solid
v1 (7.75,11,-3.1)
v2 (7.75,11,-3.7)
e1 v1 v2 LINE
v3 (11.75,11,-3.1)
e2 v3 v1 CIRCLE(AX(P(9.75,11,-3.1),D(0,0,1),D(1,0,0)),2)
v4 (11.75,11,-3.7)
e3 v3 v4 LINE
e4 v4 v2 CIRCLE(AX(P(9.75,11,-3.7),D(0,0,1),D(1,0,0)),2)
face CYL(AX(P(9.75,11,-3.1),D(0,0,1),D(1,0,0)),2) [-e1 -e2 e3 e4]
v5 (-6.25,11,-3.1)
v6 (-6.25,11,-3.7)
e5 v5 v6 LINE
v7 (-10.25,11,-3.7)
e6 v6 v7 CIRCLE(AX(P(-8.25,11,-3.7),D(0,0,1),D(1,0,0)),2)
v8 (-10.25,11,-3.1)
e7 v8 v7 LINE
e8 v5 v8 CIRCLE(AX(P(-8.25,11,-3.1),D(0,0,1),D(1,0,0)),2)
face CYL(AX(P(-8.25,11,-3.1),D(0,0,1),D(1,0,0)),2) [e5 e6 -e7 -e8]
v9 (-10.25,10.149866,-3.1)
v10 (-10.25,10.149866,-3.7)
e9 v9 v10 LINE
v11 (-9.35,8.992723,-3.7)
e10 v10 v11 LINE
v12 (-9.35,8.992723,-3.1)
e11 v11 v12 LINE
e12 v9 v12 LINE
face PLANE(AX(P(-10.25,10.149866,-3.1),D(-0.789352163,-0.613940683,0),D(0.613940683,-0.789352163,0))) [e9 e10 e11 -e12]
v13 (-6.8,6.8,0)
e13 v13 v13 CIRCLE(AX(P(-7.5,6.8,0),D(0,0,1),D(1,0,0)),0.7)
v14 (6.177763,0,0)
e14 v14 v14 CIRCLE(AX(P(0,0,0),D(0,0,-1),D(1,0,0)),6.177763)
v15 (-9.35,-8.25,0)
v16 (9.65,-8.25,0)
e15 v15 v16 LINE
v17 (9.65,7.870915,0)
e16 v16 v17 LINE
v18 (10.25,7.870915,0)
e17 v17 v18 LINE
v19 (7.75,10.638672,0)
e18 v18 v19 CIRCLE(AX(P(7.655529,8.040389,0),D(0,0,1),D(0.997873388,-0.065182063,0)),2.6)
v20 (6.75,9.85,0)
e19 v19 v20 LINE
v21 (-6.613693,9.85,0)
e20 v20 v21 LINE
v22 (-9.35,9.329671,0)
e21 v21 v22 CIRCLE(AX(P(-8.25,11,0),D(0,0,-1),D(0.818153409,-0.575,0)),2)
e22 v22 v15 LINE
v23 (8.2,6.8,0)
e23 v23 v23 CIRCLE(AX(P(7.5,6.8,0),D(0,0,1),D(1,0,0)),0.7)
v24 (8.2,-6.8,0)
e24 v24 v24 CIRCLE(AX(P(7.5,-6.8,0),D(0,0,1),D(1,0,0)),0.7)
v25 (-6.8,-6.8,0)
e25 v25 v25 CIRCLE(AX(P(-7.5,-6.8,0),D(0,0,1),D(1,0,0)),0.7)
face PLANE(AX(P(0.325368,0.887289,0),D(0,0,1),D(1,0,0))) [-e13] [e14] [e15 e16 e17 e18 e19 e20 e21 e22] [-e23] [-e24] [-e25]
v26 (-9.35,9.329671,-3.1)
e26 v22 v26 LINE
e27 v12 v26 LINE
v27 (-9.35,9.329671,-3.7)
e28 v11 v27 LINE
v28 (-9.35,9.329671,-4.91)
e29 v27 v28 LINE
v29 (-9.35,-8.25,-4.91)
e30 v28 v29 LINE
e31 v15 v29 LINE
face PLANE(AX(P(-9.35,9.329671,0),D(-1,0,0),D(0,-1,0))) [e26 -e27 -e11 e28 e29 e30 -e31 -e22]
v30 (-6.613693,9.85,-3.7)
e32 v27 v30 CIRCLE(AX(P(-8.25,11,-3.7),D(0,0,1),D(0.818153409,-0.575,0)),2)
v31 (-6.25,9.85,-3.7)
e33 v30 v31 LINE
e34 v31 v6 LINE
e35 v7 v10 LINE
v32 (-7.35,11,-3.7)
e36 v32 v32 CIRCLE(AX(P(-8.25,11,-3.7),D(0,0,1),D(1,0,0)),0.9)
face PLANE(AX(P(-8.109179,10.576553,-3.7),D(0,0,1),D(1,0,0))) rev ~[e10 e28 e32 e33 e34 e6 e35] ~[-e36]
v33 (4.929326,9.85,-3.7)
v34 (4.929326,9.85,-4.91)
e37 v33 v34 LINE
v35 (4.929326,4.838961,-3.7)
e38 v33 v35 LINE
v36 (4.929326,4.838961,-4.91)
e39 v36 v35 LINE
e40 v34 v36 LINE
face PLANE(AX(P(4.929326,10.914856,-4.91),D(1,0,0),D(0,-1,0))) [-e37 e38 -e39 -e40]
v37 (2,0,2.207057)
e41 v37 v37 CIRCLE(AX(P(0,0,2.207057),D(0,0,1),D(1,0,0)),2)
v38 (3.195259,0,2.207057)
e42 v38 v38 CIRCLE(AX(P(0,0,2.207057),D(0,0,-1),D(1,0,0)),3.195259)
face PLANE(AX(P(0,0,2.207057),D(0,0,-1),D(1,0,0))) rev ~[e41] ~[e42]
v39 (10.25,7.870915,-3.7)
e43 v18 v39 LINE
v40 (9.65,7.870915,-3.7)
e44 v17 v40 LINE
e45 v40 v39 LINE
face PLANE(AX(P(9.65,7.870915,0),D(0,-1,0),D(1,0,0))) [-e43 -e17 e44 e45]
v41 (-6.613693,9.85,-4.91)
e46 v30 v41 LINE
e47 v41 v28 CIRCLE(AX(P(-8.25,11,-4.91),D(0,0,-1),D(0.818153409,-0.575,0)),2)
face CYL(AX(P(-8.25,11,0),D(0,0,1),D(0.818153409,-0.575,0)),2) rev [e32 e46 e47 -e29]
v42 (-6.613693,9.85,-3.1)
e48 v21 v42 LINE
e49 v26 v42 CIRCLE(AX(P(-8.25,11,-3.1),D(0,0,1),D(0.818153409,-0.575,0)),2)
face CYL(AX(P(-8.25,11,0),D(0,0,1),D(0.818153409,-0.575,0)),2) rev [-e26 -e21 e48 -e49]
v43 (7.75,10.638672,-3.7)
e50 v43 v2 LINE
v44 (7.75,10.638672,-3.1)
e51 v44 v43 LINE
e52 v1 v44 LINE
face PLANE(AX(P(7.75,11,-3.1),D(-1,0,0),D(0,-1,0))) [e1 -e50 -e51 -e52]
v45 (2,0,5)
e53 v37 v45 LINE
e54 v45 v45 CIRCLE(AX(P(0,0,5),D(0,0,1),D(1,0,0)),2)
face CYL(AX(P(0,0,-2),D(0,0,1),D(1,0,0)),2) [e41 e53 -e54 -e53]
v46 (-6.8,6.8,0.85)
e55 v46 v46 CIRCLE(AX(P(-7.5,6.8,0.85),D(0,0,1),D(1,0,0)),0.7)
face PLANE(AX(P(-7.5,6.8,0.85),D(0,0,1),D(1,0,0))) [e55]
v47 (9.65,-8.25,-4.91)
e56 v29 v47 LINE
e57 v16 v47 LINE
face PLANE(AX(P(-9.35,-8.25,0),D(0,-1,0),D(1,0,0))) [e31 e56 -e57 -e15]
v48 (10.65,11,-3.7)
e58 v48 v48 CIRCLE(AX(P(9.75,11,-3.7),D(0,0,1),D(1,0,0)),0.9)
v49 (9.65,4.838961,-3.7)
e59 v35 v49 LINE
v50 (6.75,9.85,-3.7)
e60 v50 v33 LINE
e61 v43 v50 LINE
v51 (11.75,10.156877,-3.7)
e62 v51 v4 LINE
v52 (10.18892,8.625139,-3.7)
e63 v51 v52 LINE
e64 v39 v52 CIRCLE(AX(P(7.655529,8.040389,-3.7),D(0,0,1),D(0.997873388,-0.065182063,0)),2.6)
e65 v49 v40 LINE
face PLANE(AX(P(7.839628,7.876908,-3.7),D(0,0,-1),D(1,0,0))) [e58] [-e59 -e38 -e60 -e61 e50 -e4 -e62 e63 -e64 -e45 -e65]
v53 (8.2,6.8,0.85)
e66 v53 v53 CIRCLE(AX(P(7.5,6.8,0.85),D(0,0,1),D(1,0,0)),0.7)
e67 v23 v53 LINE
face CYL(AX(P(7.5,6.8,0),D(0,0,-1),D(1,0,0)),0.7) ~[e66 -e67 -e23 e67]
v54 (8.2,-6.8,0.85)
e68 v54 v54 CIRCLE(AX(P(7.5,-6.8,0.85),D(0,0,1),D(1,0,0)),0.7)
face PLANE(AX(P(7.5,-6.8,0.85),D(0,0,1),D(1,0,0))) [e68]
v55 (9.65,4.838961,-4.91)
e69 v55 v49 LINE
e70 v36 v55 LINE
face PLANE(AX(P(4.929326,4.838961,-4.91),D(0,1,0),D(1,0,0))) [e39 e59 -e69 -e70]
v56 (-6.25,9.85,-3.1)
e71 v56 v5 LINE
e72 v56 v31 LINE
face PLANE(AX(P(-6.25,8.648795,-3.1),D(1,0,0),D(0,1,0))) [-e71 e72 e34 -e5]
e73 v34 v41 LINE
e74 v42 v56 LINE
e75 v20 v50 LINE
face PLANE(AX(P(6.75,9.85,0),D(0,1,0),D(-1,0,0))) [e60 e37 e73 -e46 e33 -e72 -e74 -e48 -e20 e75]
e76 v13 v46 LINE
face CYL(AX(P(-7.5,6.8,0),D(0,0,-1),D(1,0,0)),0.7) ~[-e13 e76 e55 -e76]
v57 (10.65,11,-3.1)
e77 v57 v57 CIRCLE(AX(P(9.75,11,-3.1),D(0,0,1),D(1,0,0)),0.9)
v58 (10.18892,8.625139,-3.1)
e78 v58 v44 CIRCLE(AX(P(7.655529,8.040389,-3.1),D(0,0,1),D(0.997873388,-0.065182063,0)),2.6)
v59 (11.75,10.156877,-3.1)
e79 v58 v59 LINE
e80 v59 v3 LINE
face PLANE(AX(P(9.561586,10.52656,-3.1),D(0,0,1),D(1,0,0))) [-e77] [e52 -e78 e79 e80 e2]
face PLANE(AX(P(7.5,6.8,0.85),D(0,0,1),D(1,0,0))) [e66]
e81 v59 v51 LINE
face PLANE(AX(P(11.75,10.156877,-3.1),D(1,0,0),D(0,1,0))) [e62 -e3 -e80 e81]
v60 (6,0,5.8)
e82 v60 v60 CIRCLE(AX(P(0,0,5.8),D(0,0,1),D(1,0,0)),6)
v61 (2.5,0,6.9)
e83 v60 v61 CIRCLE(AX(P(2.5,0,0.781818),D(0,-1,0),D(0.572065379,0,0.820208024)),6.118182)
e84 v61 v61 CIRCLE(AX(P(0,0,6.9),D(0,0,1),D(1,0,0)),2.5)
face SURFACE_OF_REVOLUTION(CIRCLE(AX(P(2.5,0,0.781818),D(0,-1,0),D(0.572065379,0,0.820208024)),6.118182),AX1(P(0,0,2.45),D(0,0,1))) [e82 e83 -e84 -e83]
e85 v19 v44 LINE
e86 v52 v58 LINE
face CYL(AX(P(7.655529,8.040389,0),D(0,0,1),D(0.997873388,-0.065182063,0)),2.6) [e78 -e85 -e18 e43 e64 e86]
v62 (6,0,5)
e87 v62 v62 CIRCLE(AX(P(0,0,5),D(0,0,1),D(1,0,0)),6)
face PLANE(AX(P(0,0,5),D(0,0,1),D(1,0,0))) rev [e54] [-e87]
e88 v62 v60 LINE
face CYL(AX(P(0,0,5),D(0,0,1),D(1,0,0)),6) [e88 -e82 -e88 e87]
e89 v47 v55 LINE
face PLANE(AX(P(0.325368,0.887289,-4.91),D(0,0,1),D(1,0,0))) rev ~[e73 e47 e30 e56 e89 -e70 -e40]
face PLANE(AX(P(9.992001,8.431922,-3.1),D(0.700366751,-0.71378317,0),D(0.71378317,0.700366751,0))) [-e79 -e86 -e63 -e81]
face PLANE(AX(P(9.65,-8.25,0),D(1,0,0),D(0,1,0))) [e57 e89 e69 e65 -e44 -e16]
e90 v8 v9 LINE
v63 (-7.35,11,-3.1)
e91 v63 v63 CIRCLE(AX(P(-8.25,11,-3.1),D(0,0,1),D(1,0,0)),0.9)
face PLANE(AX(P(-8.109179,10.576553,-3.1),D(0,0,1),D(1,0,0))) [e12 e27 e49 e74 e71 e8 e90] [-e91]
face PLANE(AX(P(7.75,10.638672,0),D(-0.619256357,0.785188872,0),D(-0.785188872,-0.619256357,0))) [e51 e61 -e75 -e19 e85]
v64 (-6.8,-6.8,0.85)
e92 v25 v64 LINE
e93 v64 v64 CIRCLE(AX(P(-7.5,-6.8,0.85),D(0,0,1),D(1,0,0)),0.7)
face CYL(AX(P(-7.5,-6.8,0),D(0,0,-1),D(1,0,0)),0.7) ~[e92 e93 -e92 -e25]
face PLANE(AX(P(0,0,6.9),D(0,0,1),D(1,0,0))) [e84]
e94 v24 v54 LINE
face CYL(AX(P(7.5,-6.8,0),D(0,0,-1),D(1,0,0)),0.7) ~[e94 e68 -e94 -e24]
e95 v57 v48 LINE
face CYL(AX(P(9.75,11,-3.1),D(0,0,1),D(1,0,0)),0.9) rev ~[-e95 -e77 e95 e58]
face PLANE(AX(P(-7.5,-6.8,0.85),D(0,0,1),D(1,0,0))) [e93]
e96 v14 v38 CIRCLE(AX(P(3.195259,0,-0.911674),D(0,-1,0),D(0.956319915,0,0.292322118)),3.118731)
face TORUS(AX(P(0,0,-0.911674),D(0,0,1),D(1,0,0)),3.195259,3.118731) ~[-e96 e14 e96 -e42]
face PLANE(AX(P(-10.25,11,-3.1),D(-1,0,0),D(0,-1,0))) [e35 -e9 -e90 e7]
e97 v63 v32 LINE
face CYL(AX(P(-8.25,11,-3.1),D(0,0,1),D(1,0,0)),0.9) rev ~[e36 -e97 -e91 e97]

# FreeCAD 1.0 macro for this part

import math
import FreeCAD as App
import Part
import Sketcher

V = App.Vector


def add_polygon(sketch, points):
    """Adds a closed chain of lines whose ends are joined by coincident constraints."""
    first, n = sketch.GeometryCount, len(points)
    for a, b in zip(points, points[1:] + points[:1]):
        sketch.addGeometry(Part.LineSegment(App.Vector(*a, 0), App.Vector(*b, 0)), False)
    for i in range(n):
        sketch.addConstraint(Sketcher.Constraint("Coincident", first + i, 2, first + (i + 1) % n, 1))

doc = App.newDocument("Part")
body = doc.addObject("PartDesign::Body", "Body")

sketch1 = body.newObject("Sketcher::SketchObject", "Sketch")
sketch1.AttachmentSupport = (doc.getObject("XY_Plane"), [""])
sketch1.MapMode = "FlatFace"
sketch1.addGeometry(Part.LineSegment(V(-9.3, 9.3, 0), V(-9.3, -8.2, 0)), False)
sketch1.addGeometry(Part.LineSegment(V(-9.3, -8.2, 0), V(9.7, -8.2, 0)), False)
sketch1.addGeometry(Part.LineSegment(V(9.7, -8.2, 0), V(9.7, 7.9, 0)), False)
sketch1.addGeometry(Part.LineSegment(V(9.7, 7.9, 0), V(10.2, 7.9, 0)), False)
sketch1.addGeometry(Part.ArcOfCircle(Part.Circle(V(7.7, 8, 0), V(0, 0, 1), 2.6), math.radians(-4), math.radians(88)), False)
sketch1.addGeometry(Part.LineSegment(V(7.8, 10.6, 0), V(6.8, 9.8, 0)), False)
sketch1.addGeometry(Part.LineSegment(V(6.8, 9.8, 0), V(-6.6, 9.8, 0)), False)
sketch1.addGeometry(Part.ArcOfCircle(Part.Circle(V(-8.2, 11, 0), V(0, 0, 1), 2), math.radians(-123), math.radians(-35)), False)
sketch1.addConstraint(Sketcher.Constraint("Coincident", 0, 2, 1, 1))
sketch1.addConstraint(Sketcher.Constraint("Coincident", 1, 2, 2, 1))
sketch1.addConstraint(Sketcher.Constraint("Coincident", 2, 2, 3, 1))
sketch1.addConstraint(Sketcher.Constraint("Coincident", 3, 2, 4, 1))
sketch1.addConstraint(Sketcher.Constraint("Coincident", 4, 2, 5, 1))
sketch1.addConstraint(Sketcher.Constraint("Coincident", 5, 2, 6, 1))
sketch1.addConstraint(Sketcher.Constraint("Coincident", 6, 2, 7, 2))
sketch1.addConstraint(Sketcher.Constraint("Coincident", 7, 1, 0, 1))
sketch1.addConstraint(Sketcher.Constraint("Vertical", 0))
sketch1.addConstraint(Sketcher.Constraint("Horizontal", 1))
sketch1.addConstraint(Sketcher.Constraint("Vertical", 2))
sketch1.addConstraint(Sketcher.Constraint("Horizontal", 3))
sketch1.addConstraint(Sketcher.Constraint("Horizontal", 6))
sketch1.addConstraint(Sketcher.Constraint("Radius", 7, 2.0))
sketch1.addConstraint(Sketcher.Constraint("Radius", 4, 2.6))
sketch1.addConstraint(Sketcher.Constraint("DistanceX", 1, 1, 1, 2, 19.0))
sketch1.addConstraint(Sketcher.Constraint("DistanceX", 3, 1, 3, 2, 0.6))
sketch1.addConstraint(Sketcher.Constraint("DistanceY", -1, 1, 7, 3, 11.0))
sketch1.addConstraint(Sketcher.Constraint("DistanceX", 7, 3, 4, 2, 16.0))
sketch1.addConstraint(Sketcher.Constraint("DistanceX", 5, 2, 4, 2, 1.0))
sketch1.addConstraint(Sketcher.Constraint("DistanceX", 0, 2, 7, 3, 1.1))
sketch1.addConstraint(Sketcher.Constraint("DistanceX", 7, 3, -1, 1, 8.25))
sketch1.addConstraint(Sketcher.Constraint("DistanceY", 0, 2, -1, 1, 8.25))
sketch1.addConstraint(Sketcher.Constraint("DistanceY", -1, 1, 5, 2, 9.85))
sketch1.addConstraint(Sketcher.Constraint("DistanceY", 7, 1, 4, 2, 1.309001))
sketch1.addConstraint(Sketcher.Constraint("DistanceY", 2, 1, 2, 2, 16.120915))
pad1 = body.newObject("PartDesign::Pad", "Pad")
pad1.Profile = sketch1
pad1.Length = 4.91
pad1.Reversed = True

sketch2 = body.newObject("Sketcher::SketchObject", "Sketch001")
sketch2.AttachmentSupport = (doc.getObject("XY_Plane"), [""])
sketch2.MapMode = "FlatFace"
sketch2.addGeometry(Part.Circle(V(-7.5, -6.8, 0), V(0, 0, 1), 0.7), False)
sketch2.addGeometry(Part.Circle(V(7.5, -6.8, 0), V(0, 0, 1), 0.7), False)
sketch2.addGeometry(Part.Circle(V(-7.5, 6.8, 0), V(0, 0, 1), 0.7), False)
sketch2.addGeometry(Part.Circle(V(7.5, 6.8, 0), V(0, 0, 1), 0.7), False)
sketch2.addConstraint(Sketcher.Constraint("Equal", 0, 1))
sketch2.addConstraint(Sketcher.Constraint("Equal", 1, 2))
sketch2.addConstraint(Sketcher.Constraint("Equal", 2, 3))
sketch2.addConstraint(Sketcher.Constraint("Symmetric", 1, 3, 2, 3, -1, 1))
sketch2.addConstraint(Sketcher.Constraint("Symmetric", 0, 3, 3, 3, -1, 1))
sketch2.addConstraint(Sketcher.Constraint("Symmetric", 0, 3, 1, 3, -2))
sketch2.addConstraint(Sketcher.Constraint("Diameter", 0, 1.4))
sketch2.addConstraint(Sketcher.Constraint("DistanceX", 0, 3, 1, 3, 15.0))
sketch2.addConstraint(Sketcher.Constraint("DistanceY", 0, 3, -1, 1, 6.8))
pad2 = body.newObject("PartDesign::Pad", "Pad001")
pad2.Profile = sketch2
pad2.Length = 0.85

sketch3 = body.newObject("Sketcher::SketchObject", "Sketch002")
sketch3.AttachmentSupport = (doc.getObject("XY_Plane"), [""])
sketch3.MapMode = "FlatFace"
sketch3.AttachmentOffset = App.Placement(V(0, 0, -3.1), App.Rotation())
sketch3.addGeometry(Part.LineSegment(V(-10.2, 10.1, 0), V(-9.1, 8.6, 0)), False)
sketch3.addGeometry(Part.LineSegment(V(-9.1, 8.6, 0), V(-6.2, 8.6, 0)), False)
sketch3.addGeometry(Part.LineSegment(V(-6.2, 8.6, 0), V(-6.2, 11, 0)), False)
sketch3.addGeometry(Part.ArcOfCircle(Part.Circle(V(-8.2, 11, 0), V(0, 0, 1), 2), math.radians(0), math.radians(180)), False)
sketch3.addGeometry(Part.LineSegment(V(-10.2, 11, 0), V(-10.2, 10.1, 0)), False)
sketch3.addGeometry(Part.LineSegment(V(7.8, 11, 0), V(7.8, 8.4, 0)), False)
sketch3.addGeometry(Part.LineSegment(V(7.8, 8.4, 0), V(10, 8.4, 0)), False)
sketch3.addGeometry(Part.LineSegment(V(10, 8.4, 0), V(11.8, 10.2, 0)), False)
sketch3.addGeometry(Part.LineSegment(V(11.8, 10.2, 0), V(11.8, 11, 0)), False)
sketch3.addGeometry(Part.ArcOfCircle(Part.Circle(V(9.8, 11, 0), V(0, 0, 1), 2), math.radians(0), math.radians(180)), False)
sketch3.addConstraint(Sketcher.Constraint("Coincident", 0, 2, 1, 1))
sketch3.addConstraint(Sketcher.Constraint("Coincident", 1, 2, 2, 1))
sketch3.addConstraint(Sketcher.Constraint("Tangent", 2, 2, 3, 1))
sketch3.addConstraint(Sketcher.Constraint("Tangent", 3, 2, 4, 1))
sketch3.addConstraint(Sketcher.Constraint("Coincident", 4, 2, 0, 1))
sketch3.addConstraint(Sketcher.Constraint("Coincident", 5, 2, 6, 1))
sketch3.addConstraint(Sketcher.Constraint("Coincident", 6, 2, 7, 1))
sketch3.addConstraint(Sketcher.Constraint("Coincident", 7, 2, 8, 1))
sketch3.addConstraint(Sketcher.Constraint("Tangent", 8, 2, 9, 1))
sketch3.addConstraint(Sketcher.Constraint("Tangent", 9, 2, 5, 1))
sketch3.addConstraint(Sketcher.Constraint("Horizontal", 1))
sketch3.addConstraint(Sketcher.Constraint("Vertical", 2))
sketch3.addConstraint(Sketcher.Constraint("Vertical", 4))
sketch3.addConstraint(Sketcher.Constraint("Vertical", 5))
sketch3.addConstraint(Sketcher.Constraint("Horizontal", 6))
sketch3.addConstraint(Sketcher.Constraint("Vertical", 8))
sketch3.addConstraint(Sketcher.Constraint("Equal", 3, 9))
sketch3.addConstraint(Sketcher.Constraint("Horizontal", 3, 3, 9, 3))
sketch3.addConstraint(Sketcher.Constraint("Radius", 3, 2.0))
sketch3.addConstraint(Sketcher.Constraint("DistanceY", -1, 1, 3, 3, 11.0))
sketch3.addConstraint(Sketcher.Constraint("DistanceX", 3, 3, 9, 3, 18.0))
sketch3.addConstraint(Sketcher.Constraint("DistanceX", 6, 1, 6, 2, 2.242001))
sketch3.addConstraint(Sketcher.Constraint("DistanceX", 3, 3, -1, 1, 8.25))
sketch3.addConstraint(Sketcher.Constraint("DistanceX", 1, 1, 1, 2, 2.8325))
sketch3.addConstraint(Sketcher.Constraint("DistanceY", 5, 2, 5, 1, 2.568078))
sketch3.addConstraint(Sketcher.Constraint("Distance", 0, 1.901649))
sketch3.addConstraint(Sketcher.Constraint("Distance", 7, 2.462932))
sketch3.addConstraint(Sketcher.Constraint("DistanceY", 2, 1, 2, 2, 2.351205))
pad3 = body.newObject("PartDesign::Pad", "Pad002")
pad3.Profile = sketch3
pad3.Length = 0.6
pad3.Reversed = True

sketch4 = body.newObject("Sketcher::SketchObject", "Sketch003")
sketch4.AttachmentSupport = (doc.getObject("XY_Plane"), [""])
sketch4.MapMode = "FlatFace"
sketch4.AttachmentOffset = App.Placement(V(0, 0, -3.1), App.Rotation())
sketch4.addGeometry(Part.Circle(V(-8.2, 11, 0), V(0, 0, 1), 0.9), False)
sketch4.addGeometry(Part.Circle(V(9.8, 11, 0), V(0, 0, 1), 0.9), False)
sketch4.addConstraint(Sketcher.Constraint("Equal", 0, 1))
sketch4.addConstraint(Sketcher.Constraint("Horizontal", 0, 3, 1, 3))
sketch4.addConstraint(Sketcher.Constraint("Diameter", 0, 1.8))
sketch4.addConstraint(Sketcher.Constraint("DistanceY", -1, 1, 0, 3, 11.0))
sketch4.addConstraint(Sketcher.Constraint("DistanceX", 0, 3, 1, 3, 18.0))
sketch4.addConstraint(Sketcher.Constraint("DistanceX", 0, 3, -1, 1, 8.25))
pocket1 = body.newObject("PartDesign::Pocket", "Pocket")
pocket1.Profile = sketch4
pocket1.Type = "ThroughAll"

sketch5 = body.newObject("Sketcher::SketchObject", "Sketch004")
sketch5.AttachmentSupport = (doc.getObject("XZ_Plane"), [""])
sketch5.MapMode = "FlatFace"
sketch5.addGeometry(Part.LineSegment(V(3.2, 2.2, 0), V(0, 2.2, 0)), False)
sketch5.addGeometry(Part.LineSegment(V(0, 2.2, 0), V(0, 0, 0)), False)
sketch5.addGeometry(Part.LineSegment(V(0, 0, 0), V(6.2, 0, 0)), False)
sketch5.addGeometry(Part.ArcOfCircle(Part.Circle(V(3.2, -0.9, 0), V(0, 0, 1), 3.1), math.radians(17), math.radians(90)), False)
sketch5.addConstraint(Sketcher.Constraint("Coincident", 0, 2, 1, 1))
sketch5.addConstraint(Sketcher.Constraint("Coincident", 1, 2, 2, 1))
sketch5.addConstraint(Sketcher.Constraint("Coincident", 2, 2, 3, 1))
sketch5.addConstraint(Sketcher.Constraint("Tangent", 3, 2, 0, 1))
sketch5.addConstraint(Sketcher.Constraint("Horizontal", 0))
sketch5.addConstraint(Sketcher.Constraint("Vertical", 1))
sketch5.addConstraint(Sketcher.Constraint("Horizontal", 2))
sketch5.addConstraint(Sketcher.Constraint("Coincident", 1, 2, -1, 1))
sketch5.addConstraint(Sketcher.Constraint("Radius", 3, 3.118731))
sketch5.addConstraint(Sketcher.Constraint("DistanceX", 0, 2, 0, 1, 3.195259))
sketch5.addConstraint(Sketcher.Constraint("DistanceX", 2, 1, 2, 2, 6.177763))
revolution = body.newObject("PartDesign::Revolution", "Revolution")
revolution.Profile = sketch5
revolution.ReferenceAxis = (sketch5, ["V_Axis"])
revolution.Angle = 360

sketch6 = body.newObject("Sketcher::SketchObject", "Sketch005")
sketch6.AttachmentSupport = (doc.getObject("XY_Plane"), [""])
sketch6.MapMode = "FlatFace"
sketch6.AttachmentOffset = App.Placement(V(0, 0, 2.207057), App.Rotation())
sketch6.addGeometry(Part.Circle(V(0, 0, 0), V(0, 0, 1), 2), False)
sketch6.addConstraint(Sketcher.Constraint("Coincident", 0, 3, -1, 1))
sketch6.addConstraint(Sketcher.Constraint("Diameter", 0, 4.0))
pocket2 = body.newObject("PartDesign::Pocket", "Pocket001")
pocket2.Profile = sketch6
pocket2.Length = 4

sketch7 = body.newObject("Sketcher::SketchObject", "Sketch006")
sketch7.AttachmentSupport = (doc.getObject("XZ_Plane"), [""])
sketch7.MapMode = "FlatFace"
sketch7.addGeometry(Part.LineSegment(V(0, 6.9, 0), V(0, -2, 0)), False)
sketch7.addGeometry(Part.LineSegment(V(0, -2, 0), V(2, -2, 0)), False)
sketch7.addGeometry(Part.LineSegment(V(2, -2, 0), V(2, 5, 0)), False)
sketch7.addGeometry(Part.LineSegment(V(2, 5, 0), V(6, 5, 0)), False)
sketch7.addGeometry(Part.LineSegment(V(6, 5, 0), V(6, 5.8, 0)), False)
sketch7.addGeometry(Part.ArcOfCircle(Part.Circle(V(2.5, 0.8, 0), V(0, 0, 1), 6.1), math.radians(55), math.radians(90)), False)
sketch7.addGeometry(Part.LineSegment(V(2.5, 6.9, 0), V(0, 6.9, 0)), False)
sketch7.addConstraint(Sketcher.Constraint("Coincident", 0, 2, 1, 1))
sketch7.addConstraint(Sketcher.Constraint("Coincident", 1, 2, 2, 1))
sketch7.addConstraint(Sketcher.Constraint("Coincident", 2, 2, 3, 1))
sketch7.addConstraint(Sketcher.Constraint("Coincident", 3, 2, 4, 1))
sketch7.addConstraint(Sketcher.Constraint("Coincident", 4, 2, 5, 1))
sketch7.addConstraint(Sketcher.Constraint("Tangent", 5, 2, 6, 1))
sketch7.addConstraint(Sketcher.Constraint("Coincident", 6, 2, 0, 1))
sketch7.addConstraint(Sketcher.Constraint("Vertical", 0))
sketch7.addConstraint(Sketcher.Constraint("Horizontal", 1))
sketch7.addConstraint(Sketcher.Constraint("Vertical", 2))
sketch7.addConstraint(Sketcher.Constraint("Horizontal", 3))
sketch7.addConstraint(Sketcher.Constraint("Vertical", 4))
sketch7.addConstraint(Sketcher.Constraint("Horizontal", 6))
sketch7.addConstraint(Sketcher.Constraint("PointOnObject", 0, 2, -2))
sketch7.addConstraint(Sketcher.Constraint("DistanceX", 1, 1, 1, 2, 2.0))
sketch7.addConstraint(Sketcher.Constraint("DistanceX", 3, 1, 3, 2, 4.0))
sketch7.addConstraint(Sketcher.Constraint("DistanceY", 2, 1, 2, 2, 7.0))
sketch7.addConstraint(Sketcher.Constraint("DistanceX", 6, 2, 6, 1, 2.5))
sketch7.addConstraint(Sketcher.Constraint("DistanceY", 0, 2, 0, 1, 8.9))
sketch7.addConstraint(Sketcher.Constraint("DistanceY", 4, 1, 4, 2, 0.8))
sketch7.addConstraint(Sketcher.Constraint("DistanceY", 0, 2, -1, 1, 2.0))
revolution2 = body.newObject("PartDesign::Revolution", "Revolution001")
revolution2.Profile = sketch7
revolution2.ReferenceAxis = (sketch7, ["V_Axis"])
revolution2.Angle = 360

sketch8 = body.newObject("Sketcher::SketchObject", "Sketch007")
sketch8.AttachmentSupport = (doc.getObject("XY_Plane"), [""])
sketch8.MapMode = "FlatFace"
sketch8.AttachmentOffset = App.Placement(V(0, 0, -4.91), App.Rotation())
add_polygon(sketch8, [(5, 5), (5, 11), (11, 11), (11, 5)])
sketch8.addConstraint(Sketcher.Constraint("Vertical", 0))
sketch8.addConstraint(Sketcher.Constraint("Horizontal", 1))
sketch8.addConstraint(Sketcher.Constraint("Vertical", 2))
sketch8.addConstraint(Sketcher.Constraint("Horizontal", 3))
sketch8.addConstraint(Sketcher.Constraint("DistanceX", 1, 1, 1, 2, 5.820604))
sketch8.addConstraint(Sketcher.Constraint("DistanceY", 0, 1, 0, 2, 6.075894))
sketch8.addConstraint(Sketcher.Constraint("DistanceX", -1, 1, 1, 2, 10.74993))
sketch8.addConstraint(Sketcher.Constraint("DistanceY", -1, 1, 2, 2, 4.838961))
pocket3 = body.newObject("PartDesign::Pocket", "Pocket002")
pocket3.Profile = sketch8
pocket3.Length = 1.21
pocket3.Reversed = True

doc.recompute()
